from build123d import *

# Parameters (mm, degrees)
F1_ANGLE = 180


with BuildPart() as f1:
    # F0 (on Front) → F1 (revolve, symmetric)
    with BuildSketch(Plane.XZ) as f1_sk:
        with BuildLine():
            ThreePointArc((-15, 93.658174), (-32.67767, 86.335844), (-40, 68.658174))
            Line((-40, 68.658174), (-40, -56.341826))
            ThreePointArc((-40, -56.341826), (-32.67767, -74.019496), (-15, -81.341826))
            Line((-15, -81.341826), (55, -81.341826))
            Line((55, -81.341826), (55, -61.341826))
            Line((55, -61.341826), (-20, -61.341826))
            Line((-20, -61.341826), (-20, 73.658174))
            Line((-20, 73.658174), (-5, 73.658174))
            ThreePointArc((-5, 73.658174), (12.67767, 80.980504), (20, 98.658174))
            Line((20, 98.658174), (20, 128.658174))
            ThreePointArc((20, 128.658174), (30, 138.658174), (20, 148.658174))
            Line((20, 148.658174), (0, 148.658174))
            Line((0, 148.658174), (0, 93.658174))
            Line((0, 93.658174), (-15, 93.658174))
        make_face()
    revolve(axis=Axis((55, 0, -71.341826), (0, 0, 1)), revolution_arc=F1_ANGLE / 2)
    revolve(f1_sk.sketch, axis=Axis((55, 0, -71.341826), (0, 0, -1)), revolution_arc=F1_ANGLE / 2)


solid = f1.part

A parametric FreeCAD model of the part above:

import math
import FreeCAD as App
import Part
import Sketcher

doc = App.newDocument("Part")
body = doc.addObject("PartDesign::Body", "Body")

# Sketch on XZ plane
sketch1 = body.newObject("Sketcher::SketchObject", "Sketch")
sketch1.AttachmentSupport = (doc.getObject("XZ_Plane"), [""])
sketch1.MapMode = "FlatFace"
sketch1.addGeometry(Part.ArcOfCircle(Part.Circle(App.Vector(-15, 69, 0), App.Vector(0, 0, 1), 25), math.radians(90), math.radians(180)), False)
sketch1.addGeometry(Part.LineSegment(App.Vector(-40, 69, 0), App.Vector(-40, -56, 0)), False)
sketch1.addGeometry(Part.ArcOfCircle(Part.Circle(App.Vector(-15, -56, 0), App.Vector(0, 0, 1), 25), math.radians(180), math.radians(270)), False)
sketch1.addGeometry(Part.LineSegment(App.Vector(-15, -81, 0), App.Vector(55, -81, 0)), False)
sketch1.addGeometry(Part.LineSegment(App.Vector(55, -81, 0), App.Vector(55, -61, 0)), False)
sketch1.addGeometry(Part.LineSegment(App.Vector(55, -61, 0), App.Vector(-20, -61, 0)), False)
sketch1.addGeometry(Part.LineSegment(App.Vector(-20, -61, 0), App.Vector(-20, 74, 0)), False)
sketch1.addGeometry(Part.LineSegment(App.Vector(-20, 74, 0), App.Vector(-5, 74, 0)), False)
sketch1.addGeometry(Part.ArcOfCircle(Part.Circle(App.Vector(-5, 99, 0), App.Vector(0, 0, 1), 25), math.radians(-90), math.radians(0)), False)
sketch1.addGeometry(Part.LineSegment(App.Vector(20, 99, 0), App.Vector(20, 129, 0)), False)
sketch1.addGeometry(Part.ArcOfCircle(Part.Circle(App.Vector(20, 139, 0), App.Vector(0, 0, 1), 10), math.radians(-90), math.radians(90)), False)
sketch1.addGeometry(Part.LineSegment(App.Vector(20, 149, 0), App.Vector(0, 149, 0)), False)
sketch1.addGeometry(Part.LineSegment(App.Vector(0, 149, 0), App.Vector(0, 94, 0)), False)
sketch1.addGeometry(Part.LineSegment(App.Vector(0, 94, 0), App.Vector(-15, 94, 0)), False)
sketch1.addGeometry(Part.LineSegment(App.Vector(55, -81, 0), App.Vector(55, 149, 0)), True)  # axis
sketch1.addConstraint(Sketcher.Constraint("Tangent", 0, 2, 1, 1))
sketch1.addConstraint(Sketcher.Constraint("Tangent", 1, 2, 2, 1))
sketch1.addConstraint(Sketcher.Constraint("Tangent", 2, 2, 3, 1))
sketch1.addConstraint(Sketcher.Constraint("Coincident", 3, 2, 4, 1))
sketch1.addConstraint(Sketcher.Constraint("Coincident", 4, 2, 5, 1))
sketch1.addConstraint(Sketcher.Constraint("Coincident", 5, 2, 6, 1))
sketch1.addConstraint(Sketcher.Constraint("Coincident", 6, 2, 7, 1))
sketch1.addConstraint(Sketcher.Constraint("Tangent", 7, 2, 8, 1))
sketch1.addConstraint(Sketcher.Constraint("Tangent", 8, 2, 9, 1))
sketch1.addConstraint(Sketcher.Constraint("Coincident", 9, 2, 10, 1))
sketch1.addConstraint(Sketcher.Constraint("Tangent", 10, 2, 11, 1))
sketch1.addConstraint(Sketcher.Constraint("Coincident", 11, 2, 12, 1))
sketch1.addConstraint(Sketcher.Constraint("Coincident", 12, 2, 13, 1))
sketch1.addConstraint(Sketcher.Constraint("Tangent", 13, 2, 0, 1))
sketch1.addConstraint(Sketcher.Constraint("Vertical", 1))
sketch1.addConstraint(Sketcher.Constraint("Horizontal", 3))
sketch1.addConstraint(Sketcher.Constraint("Vertical", 4))
sketch1.addConstraint(Sketcher.Constraint("Horizontal", 5))
sketch1.addConstraint(Sketcher.Constraint("Vertical", 6))
sketch1.addConstraint(Sketcher.Constraint("Horizontal", 7))
sketch1.addConstraint(Sketcher.Constraint("Vertical", 9))
sketch1.addConstraint(Sketcher.Constraint("Horizontal", 11))
sketch1.addConstraint(Sketcher.Constraint("Vertical", 12))
sketch1.addConstraint(Sketcher.Constraint("Horizontal", 13))
sketch1.addConstraint(Sketcher.Constraint("Vertical", 14))
sketch1.addConstraint(Sketcher.Constraint("Coincident", 14, 1, 3, 2))
sketch1.addConstraint(Sketcher.Constraint("Equal", 0, 2))
sketch1.addConstraint(Sketcher.Constraint("Equal", 2, 8))
sketch1.addConstraint(Sketcher.Constraint("PointOnObject", 11, 2, -2))
sketch1.addConstraint(Sketcher.Constraint("Horizontal", 11, 2, 14, 2))
sketch1.addConstraint(Sketcher.Constraint("Vertical", 10, 3, 8, 2))
sketch1.addConstraint(Sketcher.Constraint("Equal", 7, 13))
sketch1.addConstraint(Sketcher.Constraint("Equal", 11, 4))
sketch1.addConstraint(Sketcher.Constraint("Radius", 0, 24.999998))
sketch1.addConstraint(Sketcher.Constraint("Radius", 10, 10.0))
sketch1.addConstraint(Sketcher.Constraint("DistanceX", 3, 1, 3, 2, 70.0))
sketch1.addConstraint(Sketcher.Constraint("DistanceX", 5, 2, 5, 1, 75.0))
sketch1.addConstraint(Sketcher.Constraint("DistanceX", 7, 1, 7, 2, 15.0))
sketch1.addConstraint(Sketcher.Constraint("DistanceY", 1, 2, 1, 1, 125.0))
sketch1.addConstraint(Sketcher.Constraint("DistanceY", 6, 1, 6, 2, 135.0))
sketch1.addConstraint(Sketcher.Constraint("DistanceY", 9, 1, 9, 2, 30.0))
sketch1.addConstraint(Sketcher.Constraint("DistanceY", -1, 1, 0, 3, 68.658176))
revolution = body.newObject("PartDesign::Revolution", "Revolution")
revolution.Profile = sketch1
revolution.ReferenceAxis = (sketch1, ["Axis0"])
revolution.Angle = 90

# Sketch on XZ plane
sketch2 = body.newObject("Sketcher::SketchObject", "Sketch001")
sketch2.AttachmentSupport = (doc.getObject("XZ_Plane"), [""])
sketch2.MapMode = "FlatFace"
sketch2.addGeometry(Part.ArcOfCircle(Part.Circle(App.Vector(-15, 69, 0), App.Vector(0, 0, 1), 25), math.radians(90), math.radians(180)), False)
sketch2.addGeometry(Part.LineSegment(App.Vector(-40, 69, 0), App.Vector(-40, -56, 0)), False)
sketch2.addGeometry(Part.ArcOfCircle(Part.Circle(App.Vector(-15, -56, 0), App.Vector(0, 0, 1), 25), math.radians(180), math.radians(270)), False)
sketch2.addGeometry(Part.LineSegment(App.Vector(-15, -81, 0), App.Vector(55, -81, 0)), False)
sketch2.addGeometry(Part.LineSegment(App.Vector(55, -81, 0), App.Vector(55, -61, 0)), False)
sketch2.addGeometry(Part.LineSegment(App.Vector(55, -61, 0), App.Vector(-20, -61, 0)), False)
sketch2.addGeometry(Part.LineSegment(App.Vector(-20, -61, 0), App.Vector(-20, 74, 0)), False)
sketch2.addGeometry(Part.LineSegment(App.Vector(-20, 74, 0), App.Vector(-5, 74, 0)), False)
sketch2.addGeometry(Part.ArcOfCircle(Part.Circle(App.Vector(-5, 99, 0), App.Vector(0, 0, 1), 25), math.radians(-90), math.radians(0)), False)
sketch2.addGeometry(Part.LineSegment(App.Vector(20, 99, 0), App.Vector(20, 129, 0)), False)
sketch2.addGeometry(Part.ArcOfCircle(Part.Circle(App.Vector(20, 139, 0), App.Vector(0, 0, 1), 10), math.radians(-90), math.radians(90)), False)
sketch2.addGeometry(Part.LineSegment(App.Vector(20, 149, 0), App.Vector(0, 149, 0)), False)
sketch2.addGeometry(Part.LineSegment(App.Vector(0, 149, 0), App.Vector(0, 94, 0)), False)
sketch2.addGeometry(Part.LineSegment(App.Vector(0, 94, 0), App.Vector(-15, 94, 0)), False)
sketch2.addGeometry(Part.LineSegment(App.Vector(55, 149, 0), App.Vector(55, -81, 0)), True)  # axis
sketch2.addConstraint(Sketcher.Constraint("Tangent", 0, 2, 1, 1))
sketch2.addConstraint(Sketcher.Constraint("Tangent", 1, 2, 2, 1))
sketch2.addConstraint(Sketcher.Constraint("Tangent", 2, 2, 3, 1))
sketch2.addConstraint(Sketcher.Constraint("Coincident", 3, 2, 4, 1))
sketch2.addConstraint(Sketcher.Constraint("Coincident", 4, 2, 5, 1))
sketch2.addConstraint(Sketcher.Constraint("Coincident", 5, 2, 6, 1))
sketch2.addConstraint(Sketcher.Constraint("Coincident", 6, 2, 7, 1))
sketch2.addConstraint(Sketcher.Constraint("Tangent", 7, 2, 8, 1))
sketch2.addConstraint(Sketcher.Constraint("Tangent", 8, 2, 9, 1))
sketch2.addConstraint(Sketcher.Constraint("Coincident", 9, 2, 10, 1))
sketch2.addConstraint(Sketcher.Constraint("Tangent", 10, 2, 11, 1))
sketch2.addConstraint(Sketcher.Constraint("Coincident", 11, 2, 12, 1))
sketch2.addConstraint(Sketcher.Constraint("Coincident", 12, 2, 13, 1))
sketch2.addConstraint(Sketcher.Constraint("Tangent", 13, 2, 0, 1))
sketch2.addConstraint(Sketcher.Constraint("Vertical", 1))
sketch2.addConstraint(Sketcher.Constraint("Horizontal", 3))
sketch2.addConstraint(Sketcher.Constraint("Vertical", 4))
sketch2.addConstraint(Sketcher.Constraint("Horizontal", 5))
sketch2.addConstraint(Sketcher.Constraint("Vertical", 6))
sketch2.addConstraint(Sketcher.Constraint("Horizontal", 7))
sketch2.addConstraint(Sketcher.Constraint("Vertical", 9))
sketch2.addConstraint(Sketcher.Constraint("Horizontal", 11))
sketch2.addConstraint(Sketcher.Constraint("Vertical", 12))
sketch2.addConstraint(Sketcher.Constraint("Horizontal", 13))
sketch2.addConstraint(Sketcher.Constraint("Vertical", 14))
sketch2.addConstraint(Sketcher.Constraint("Coincident", 14, 2, 3, 2))
sketch2.addConstraint(Sketcher.Constraint("Equal", 0, 2))
sketch2.addConstraint(Sketcher.Constraint("Equal", 2, 8))
sketch2.addConstraint(Sketcher.Constraint("PointOnObject", 11, 2, -2))
sketch2.addConstraint(Sketcher.Constraint("Horizontal", 11, 2, 14, 1))
sketch2.addConstraint(Sketcher.Constraint("Vertical", 10, 3, 8, 2))
sketch2.addConstraint(Sketcher.Constraint("Equal", 7, 13))
sketch2.addConstraint(Sketcher.Constraint("Equal", 11, 4))
sketch2.addConstraint(Sketcher.Constraint("Radius", 0, 24.999998))
sketch2.addConstraint(Sketcher.Constraint("Radius", 10, 10.0))
sketch2.addConstraint(Sketcher.Constraint("DistanceX", 3, 1, 3, 2, 70.0))
sketch2.addConstraint(Sketcher.Constraint("DistanceX", 5, 2, 5, 1, 75.0))
sketch2.addConstraint(Sketcher.Constraint("DistanceX", 7, 1, 7, 2, 15.0))
sketch2.addConstraint(Sketcher.Constraint("DistanceY", 1, 2, 1, 1, 125.0))
sketch2.addConstraint(Sketcher.Constraint("DistanceY", 6, 1, 6, 2, 135.0))
sketch2.addConstraint(Sketcher.Constraint("DistanceY", 9, 1, 9, 2, 30.0))
sketch2.addConstraint(Sketcher.Constraint("DistanceY", -1, 1, 0, 3, 68.658176))
revolution2 = body.newObject("PartDesign::Revolution", "Revolution001")
revolution2.Profile = sketch2
revolution2.ReferenceAxis = (sketch2, ["Axis0"])
revolution2.Angle = 90

doc.recompute()
